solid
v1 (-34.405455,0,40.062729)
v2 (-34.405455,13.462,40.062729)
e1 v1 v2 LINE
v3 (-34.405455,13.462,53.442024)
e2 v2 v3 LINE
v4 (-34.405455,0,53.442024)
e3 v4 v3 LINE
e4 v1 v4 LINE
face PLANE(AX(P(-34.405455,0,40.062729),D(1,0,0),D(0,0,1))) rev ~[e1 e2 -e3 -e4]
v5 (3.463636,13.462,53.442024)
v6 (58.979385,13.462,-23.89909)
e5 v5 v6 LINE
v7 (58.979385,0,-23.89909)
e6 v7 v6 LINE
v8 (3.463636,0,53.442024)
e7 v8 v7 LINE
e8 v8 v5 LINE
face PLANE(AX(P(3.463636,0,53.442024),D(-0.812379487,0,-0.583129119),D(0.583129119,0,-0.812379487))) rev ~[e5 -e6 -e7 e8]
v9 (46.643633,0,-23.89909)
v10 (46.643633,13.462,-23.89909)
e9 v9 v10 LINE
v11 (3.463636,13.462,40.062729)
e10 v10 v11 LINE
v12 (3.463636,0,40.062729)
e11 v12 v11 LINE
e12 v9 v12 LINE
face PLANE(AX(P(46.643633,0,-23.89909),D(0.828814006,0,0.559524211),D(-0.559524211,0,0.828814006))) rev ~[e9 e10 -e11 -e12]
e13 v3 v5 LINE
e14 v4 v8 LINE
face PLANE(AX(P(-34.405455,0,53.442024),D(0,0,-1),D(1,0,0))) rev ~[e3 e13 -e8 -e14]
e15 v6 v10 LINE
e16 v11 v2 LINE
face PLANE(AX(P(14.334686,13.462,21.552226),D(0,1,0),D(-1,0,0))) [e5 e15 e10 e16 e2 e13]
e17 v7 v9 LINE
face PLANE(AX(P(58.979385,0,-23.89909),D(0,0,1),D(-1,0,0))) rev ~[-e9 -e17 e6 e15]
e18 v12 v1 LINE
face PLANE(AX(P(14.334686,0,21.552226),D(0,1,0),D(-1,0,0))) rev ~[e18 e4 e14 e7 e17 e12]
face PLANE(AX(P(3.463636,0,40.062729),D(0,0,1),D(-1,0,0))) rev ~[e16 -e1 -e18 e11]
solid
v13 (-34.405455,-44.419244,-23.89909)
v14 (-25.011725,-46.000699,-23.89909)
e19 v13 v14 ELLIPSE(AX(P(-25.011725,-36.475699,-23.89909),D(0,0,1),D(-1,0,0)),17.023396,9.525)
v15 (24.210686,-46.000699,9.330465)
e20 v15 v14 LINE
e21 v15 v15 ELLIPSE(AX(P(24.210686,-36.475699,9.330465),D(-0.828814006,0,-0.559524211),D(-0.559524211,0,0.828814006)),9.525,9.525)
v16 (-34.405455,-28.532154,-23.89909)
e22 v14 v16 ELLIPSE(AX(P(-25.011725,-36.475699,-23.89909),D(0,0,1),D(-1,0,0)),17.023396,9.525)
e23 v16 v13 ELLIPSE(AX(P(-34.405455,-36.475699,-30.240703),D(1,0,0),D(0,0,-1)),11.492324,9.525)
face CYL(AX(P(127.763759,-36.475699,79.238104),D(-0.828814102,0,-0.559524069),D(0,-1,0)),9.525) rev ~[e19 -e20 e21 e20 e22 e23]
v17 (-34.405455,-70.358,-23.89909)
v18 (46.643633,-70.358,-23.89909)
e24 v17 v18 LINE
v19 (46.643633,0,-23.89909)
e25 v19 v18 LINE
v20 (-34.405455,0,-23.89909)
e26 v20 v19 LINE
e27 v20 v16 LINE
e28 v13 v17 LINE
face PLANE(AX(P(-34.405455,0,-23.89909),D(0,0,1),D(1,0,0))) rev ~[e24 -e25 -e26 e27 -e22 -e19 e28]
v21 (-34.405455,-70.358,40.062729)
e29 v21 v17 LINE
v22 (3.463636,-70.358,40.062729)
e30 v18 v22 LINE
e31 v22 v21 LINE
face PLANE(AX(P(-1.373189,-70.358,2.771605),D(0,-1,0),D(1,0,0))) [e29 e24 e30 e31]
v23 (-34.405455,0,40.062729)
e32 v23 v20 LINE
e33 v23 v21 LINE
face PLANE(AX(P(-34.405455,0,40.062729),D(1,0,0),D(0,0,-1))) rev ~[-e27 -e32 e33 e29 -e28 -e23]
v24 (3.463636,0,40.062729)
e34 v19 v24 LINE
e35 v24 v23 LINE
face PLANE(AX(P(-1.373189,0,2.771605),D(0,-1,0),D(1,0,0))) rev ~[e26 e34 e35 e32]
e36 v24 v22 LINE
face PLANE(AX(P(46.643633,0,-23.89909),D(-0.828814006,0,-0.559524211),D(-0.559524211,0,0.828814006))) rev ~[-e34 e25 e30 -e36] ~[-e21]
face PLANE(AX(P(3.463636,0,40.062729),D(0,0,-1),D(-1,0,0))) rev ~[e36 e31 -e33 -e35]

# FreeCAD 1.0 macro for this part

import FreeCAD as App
import Part
import Sketcher
Q = App.Units.Quantity

doc = App.newDocument("Part")
body = doc.addObject("PartDesign::Body", "Body")

# Sketch on XZ plane
sketch1 = body.newObject("Sketcher::SketchObject", "Sketch")
sketch1.AttachmentSupport = (doc.getObject("XZ_Plane"), [""])
sketch1.MapMode = "FlatFace"
sketch1.addGeometry(Part.LineSegment(App.Vector(-34.405455, 40.062729, 0), App.Vector(-34.405455, -23.89909, 0)), False)
sketch1.addGeometry(Part.LineSegment(App.Vector(-34.405455, -23.89909, 0), App.Vector(46.643633, -23.89909, 0)), False)
sketch1.addGeometry(Part.LineSegment(App.Vector(46.643633, -23.89909, 0), App.Vector(3.463636, 40.062729, 0)), False)
sketch1.addGeometry(Part.LineSegment(App.Vector(3.463636, 40.062729, 0), App.Vector(-34.405455, 40.062729, 0)), False)
sketch1.addConstraint(Sketcher.Constraint("Coincident", 0, 2, 1, 1))
sketch1.addConstraint(Sketcher.Constraint("Coincident", 1, 2, 2, 1))
sketch1.addConstraint(Sketcher.Constraint("Coincident", 2, 2, 3, 1))
sketch1.addConstraint(Sketcher.Constraint("Coincident", 3, 2, 0, 1))
sketch1.addConstraint(Sketcher.Constraint("Vertical", 0))
sketch1.addConstraint(Sketcher.Constraint("Horizontal", 1))
sketch1.addConstraint(Sketcher.Constraint("Horizontal", 3))
sketch1.addConstraint(Sketcher.Constraint("DistanceX", 2, 2, 1, 2, Q("1.6999999 in")))
sketch1.addConstraint(Sketcher.Constraint("DistanceX", 1, 1, 1, 2, Q("81.049088 mm")))
sketch1.addConstraint(Sketcher.Constraint("DistanceY", 0, 2, 0, 1, Q("63.961819 mm")))
sketch1.addConstraint(Sketcher.Constraint("DistanceY", 0, 2, -1, 1, Q("23.89909 mm")))
sketch1.addConstraint(Sketcher.Constraint("DistanceX", 0, 2, -1, 1, Q("34.405455 mm")))
pad1 = body.newObject("PartDesign::Pad", "Pad")
pad1.Profile = sketch1
pad1.Length = Q("2.77 in")

# Sketch on an angled plane
sketch2 = body.newObject("Sketcher::SketchObject", "Sketch001")
sketch2.Placement = App.Placement(App.Vector(20.958037, 0, 14.14856), App.Rotation(App.Vector(0, 1, 0), App.Vector(-0.559524069, 0, 0.828814102), App.Vector(0.828814102, 0, 0.559524069), "ZXY"))
sketch2.addGeometry(Part.Circle(App.Vector(-36.475699, -5.813241, 0), App.Vector(0, 0, 1), 9.525), False)
sketch2.addConstraint(Sketcher.Constraint("Diameter", 0, Q("0.75 in")))
sketch2.addConstraint(Sketcher.Constraint("DistanceX", 0, 3, -1, 1, Q("36.475699 mm")))
sketch2.addConstraint(Sketcher.Constraint("DistanceY", 0, 3, -1, 1, Q("5.813241 mm")))
doc.recompute()
hole = body.newObject("PartDesign::Hole", "Hole")
hole.Profile = sketch2
hole.ThreadType = "None"
hole.Diameter = Q("0.75 in")
hole.DepthType = "ThroughAll"
body2 = doc.addObject("PartDesign::Body", "Body001")

# Sketch on XZ plane
sketch3 = body2.newObject("Sketcher::SketchObject", "Sketch002")
sketch3.AttachmentSupport = (doc.getObject("XZ_Plane001"), [""])
sketch3.MapMode = "FlatFace"
sketch3.addGeometry(Part.LineSegment(App.Vector(3.463636, 40.062729, 0), App.Vector(-34.405455, 40.062729, 0)), False)
sketch3.addGeometry(Part.LineSegment(App.Vector(-34.405455, 40.062729, 0), App.Vector(-34.405455, 53.442024, 0)), False)
sketch3.addGeometry(Part.LineSegment(App.Vector(-34.405455, 53.442024, 0), App.Vector(3.463636, 53.442024, 0)), False)
sketch3.addGeometry(Part.LineSegment(App.Vector(3.463636, 53.442024, 0), App.Vector(58.979385, -23.89909, 0)), False)
sketch3.addGeometry(Part.LineSegment(App.Vector(58.979385, -23.89909, 0), App.Vector(46.643633, -23.89909, 0)), False)
sketch3.addGeometry(Part.LineSegment(App.Vector(46.643633, -23.89909, 0), App.Vector(3.463636, 40.062729, 0)), False)
sketch3.addConstraint(Sketcher.Constraint("Coincident", 0, 2, 1, 1))
sketch3.addConstraint(Sketcher.Constraint("Coincident", 1, 2, 2, 1))
sketch3.addConstraint(Sketcher.Constraint("Coincident", 2, 2, 3, 1))
sketch3.addConstraint(Sketcher.Constraint("Coincident", 3, 2, 4, 1))
sketch3.addConstraint(Sketcher.Constraint("Coincident", 4, 2, 5, 1))
sketch3.addConstraint(Sketcher.Constraint("Coincident", 5, 2, 0, 1))
sketch3.addConstraint(Sketcher.Constraint("Horizontal", 0))
sketch3.addConstraint(Sketcher.Constraint("Vertical", 1))
sketch3.addConstraint(Sketcher.Constraint("Horizontal", 2))
sketch3.addConstraint(Sketcher.Constraint("Horizontal", 4))
sketch3.addConstraint(Sketcher.Constraint("Vertical", 2, 2, 5, 2))
sketch3.addConstraint(Sketcher.Constraint("DistanceX", 2, 2, 4, 2, Q("1.6999999 in")))
sketch3.addConstraint(Sketcher.Constraint("DistanceX", 0, 2, 0, 1, Q("37.869091 mm")))
sketch3.addConstraint(Sketcher.Constraint("DistanceX", 4, 2, 4, 1, Q("12.335752 mm")))
sketch3.addConstraint(Sketcher.Constraint("DistanceY", 1, 1, 1, 2, Q("13.379295 mm")))
sketch3.addConstraint(Sketcher.Constraint("DistanceY", -1, 1, 0, 2, Q("40.062729 mm")))
sketch3.addConstraint(Sketcher.Constraint("DistanceY", 3, 2, -1, 1, Q("23.89909 mm")))
sketch3.addConstraint(Sketcher.Constraint("DistanceX", 0, 2, -1, 1, Q("34.405455 mm")))
pad2 = body2.newObject("PartDesign::Pad", "Pad001")
pad2.Profile = sketch3
pad2.Length = Q("0.53 in")
pad2.Reversed = True

doc.recompute()
